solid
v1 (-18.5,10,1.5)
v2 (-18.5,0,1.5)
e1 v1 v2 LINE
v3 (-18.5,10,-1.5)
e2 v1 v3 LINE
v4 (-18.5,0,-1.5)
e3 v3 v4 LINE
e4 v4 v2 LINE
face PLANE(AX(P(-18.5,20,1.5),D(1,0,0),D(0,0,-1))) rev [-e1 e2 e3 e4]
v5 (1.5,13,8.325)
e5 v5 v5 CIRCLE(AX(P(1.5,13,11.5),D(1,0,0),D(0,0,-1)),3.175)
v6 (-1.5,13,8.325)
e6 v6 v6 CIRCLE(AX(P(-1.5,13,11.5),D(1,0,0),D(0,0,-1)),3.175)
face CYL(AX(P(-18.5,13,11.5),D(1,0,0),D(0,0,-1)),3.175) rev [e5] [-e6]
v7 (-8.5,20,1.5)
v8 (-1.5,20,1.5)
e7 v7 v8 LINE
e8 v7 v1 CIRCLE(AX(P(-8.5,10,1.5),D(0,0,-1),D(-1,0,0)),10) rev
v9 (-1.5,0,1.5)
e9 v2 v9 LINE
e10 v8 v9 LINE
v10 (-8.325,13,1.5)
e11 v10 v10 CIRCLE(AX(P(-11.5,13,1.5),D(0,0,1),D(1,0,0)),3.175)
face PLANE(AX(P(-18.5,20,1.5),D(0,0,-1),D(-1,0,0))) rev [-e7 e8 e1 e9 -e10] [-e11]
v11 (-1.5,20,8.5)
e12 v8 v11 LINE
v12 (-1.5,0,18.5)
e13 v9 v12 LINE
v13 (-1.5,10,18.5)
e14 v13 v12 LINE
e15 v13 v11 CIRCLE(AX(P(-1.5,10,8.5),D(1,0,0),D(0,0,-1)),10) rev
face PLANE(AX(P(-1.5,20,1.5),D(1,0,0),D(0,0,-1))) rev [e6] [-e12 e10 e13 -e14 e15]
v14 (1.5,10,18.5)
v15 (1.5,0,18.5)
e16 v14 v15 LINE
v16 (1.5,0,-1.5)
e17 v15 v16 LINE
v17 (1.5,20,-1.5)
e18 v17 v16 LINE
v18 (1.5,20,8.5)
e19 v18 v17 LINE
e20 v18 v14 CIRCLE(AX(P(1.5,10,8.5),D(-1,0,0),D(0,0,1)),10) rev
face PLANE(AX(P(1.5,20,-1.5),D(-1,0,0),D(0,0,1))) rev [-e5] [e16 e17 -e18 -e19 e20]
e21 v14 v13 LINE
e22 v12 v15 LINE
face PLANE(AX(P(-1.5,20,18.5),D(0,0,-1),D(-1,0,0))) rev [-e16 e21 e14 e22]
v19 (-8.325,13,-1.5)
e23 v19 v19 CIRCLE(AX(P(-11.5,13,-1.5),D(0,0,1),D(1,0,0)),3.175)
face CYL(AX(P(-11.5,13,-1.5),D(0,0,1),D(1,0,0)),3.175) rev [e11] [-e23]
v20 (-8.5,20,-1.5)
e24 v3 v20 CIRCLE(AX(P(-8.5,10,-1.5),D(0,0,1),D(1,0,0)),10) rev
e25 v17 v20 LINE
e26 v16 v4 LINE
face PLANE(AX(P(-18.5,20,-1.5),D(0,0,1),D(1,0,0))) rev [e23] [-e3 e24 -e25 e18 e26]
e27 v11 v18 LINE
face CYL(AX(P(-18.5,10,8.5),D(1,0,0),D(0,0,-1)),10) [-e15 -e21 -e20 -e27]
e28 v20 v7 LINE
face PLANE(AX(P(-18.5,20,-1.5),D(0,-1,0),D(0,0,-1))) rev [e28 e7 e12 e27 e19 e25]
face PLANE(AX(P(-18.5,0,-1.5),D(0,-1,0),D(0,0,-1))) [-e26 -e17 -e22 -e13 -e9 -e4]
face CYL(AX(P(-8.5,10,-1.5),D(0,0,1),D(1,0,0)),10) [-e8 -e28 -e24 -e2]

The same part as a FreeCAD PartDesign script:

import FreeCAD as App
import Part
import Sketcher
from FreeCAD import Vector


def edges_at(feature, points):
    """Names of the edges that pass closest to the given points."""
    edges = feature.Shape.Edges
    near = lambda p: min(range(len(edges)), key=lambda i: edges[i].distToShape(Part.Vertex(*p))[0])
    return sorted({f"Edge{near(p) + 1}" for p in points})

doc = App.newDocument("Part")
body = doc.addObject("PartDesign::Body", "Body")

# Sketch on XZ plane
sketch1 = doc.addObject("Sketcher::SketchObject", "Sketch")
body.addObject(sketch1)
sketch1.AttachmentSupport = (doc.XZ_Plane, [""])
sketch1.MapMode = "FlatFace"
sketch1.addGeometry(Part.LineSegment(Vector(-18.5, 1.5, 0), Vector(-1.5, 1.5, 0)), False)
sketch1.addGeometry(Part.LineSegment(Vector(-1.5, 1.5, 0), Vector(-1.5, 18.5, 0)), False)
sketch1.addGeometry(Part.LineSegment(Vector(-1.5, 18.5, 0), Vector(1.5, 18.5, 0)), False)
sketch1.addGeometry(Part.LineSegment(Vector(1.5, 18.5, 0), Vector(1.5, -1.5, 0)), False)
sketch1.addGeometry(Part.LineSegment(Vector(1.5, -1.5, 0), Vector(-18.5, -1.5, 0)), False)
sketch1.addGeometry(Part.LineSegment(Vector(-18.5, -1.5, 0), Vector(-18.5, 1.5, 0)), False)
sketch1.addConstraint(Sketcher.Constraint("Coincident", 0, 2, 1, 1))
sketch1.addConstraint(Sketcher.Constraint("Coincident", 1, 2, 2, 1))
sketch1.addConstraint(Sketcher.Constraint("Coincident", 2, 2, 3, 1))
sketch1.addConstraint(Sketcher.Constraint("Coincident", 3, 2, 4, 1))
sketch1.addConstraint(Sketcher.Constraint("Coincident", 4, 2, 5, 1))
sketch1.addConstraint(Sketcher.Constraint("Coincident", 5, 2, 0, 1))
sketch1.addConstraint(Sketcher.Constraint("Horizontal", 0))
sketch1.addConstraint(Sketcher.Constraint("Vertical", 1))
sketch1.addConstraint(Sketcher.Constraint("Horizontal", 2))
sketch1.addConstraint(Sketcher.Constraint("Vertical", 3))
sketch1.addConstraint(Sketcher.Constraint("Horizontal", 4))
sketch1.addConstraint(Sketcher.Constraint("Vertical", 5))
sketch1.addConstraint(Sketcher.Constraint("Symmetric", 0, 2, 3, 2, -1, 1))
sketch1.addConstraint(Sketcher.Constraint("Equal", 0, 1))
sketch1.addConstraint(Sketcher.Constraint("Equal", 4, 3))
sketch1.addConstraint(Sketcher.Constraint("DistanceX", 0, 1, 0, 2, 17.0))
sketch1.addConstraint(Sketcher.Constraint("DistanceX", 2, 1, 2, 2, 3.0))
pad1 = doc.addObject("PartDesign::Pad", "Pad")
body.addObject(pad1)
pad1.Profile = sketch1
pad1.Length = 20
pad1.Reversed = True
doc.recompute()

fillet = doc.addObject("PartDesign::Fillet", "Fillet")
body.addObject(fillet)
fillet.Base = (pad1, edges_at(pad1, [(0, 20, 18.5), (-18.5, 20, 0)]))
fillet.Radius = 10

# Sketch on YZ plane
sketch2 = doc.addObject("Sketcher::SketchObject", "Sketch001")
body.addObject(sketch2)
sketch2.AttachmentSupport = (doc.YZ_Plane, [""])
sketch2.MapMode = "FlatFace"
sketch2.AttachmentOffset = App.Placement(Vector(0, 0, 1.5), App.Rotation())
sketch2.addGeometry(Part.Circle(Vector(13, 11.5, 0), Vector(0, 0, 1), 3.2), False)
sketch2.addConstraint(Sketcher.Constraint("Diameter", 0, 6.35))
sketch2.addConstraint(Sketcher.Constraint("DistanceX", -1, 1, 0, 3, 13.0))
sketch2.addConstraint(Sketcher.Constraint("DistanceY", -1, 1, 0, 3, 11.5))
pocket1 = doc.addObject("PartDesign::Pocket", "Pocket")
body.addObject(pocket1)
pocket1.Profile = sketch2
pocket1.Type = "ThroughAll"

# Sketch on XY plane
sketch3 = doc.addObject("Sketcher::SketchObject", "Sketch002")
body.addObject(sketch3)
sketch3.AttachmentSupport = (doc.XY_Plane, [""])
sketch3.MapMode = "FlatFace"
sketch3.AttachmentOffset = App.Placement(Vector(0, 0, 1.5), App.Rotation())
sketch3.addGeometry(Part.Circle(Vector(-11.5, 13, 0), Vector(0, 0, 1), 3.2), False)
sketch3.addConstraint(Sketcher.Constraint("Diameter", 0, 6.35))
sketch3.addConstraint(Sketcher.Constraint("DistanceY", -1, 1, 0, 3, 13.0))
sketch3.addConstraint(Sketcher.Constraint("DistanceX", 0, 3, -1, 1, 11.5))
pocket2 = doc.addObject("PartDesign::Pocket", "Pocket001")
body.addObject(pocket2)
pocket2.Profile = sketch3
pocket2.Type = "ThroughAll"

doc.recompute()
